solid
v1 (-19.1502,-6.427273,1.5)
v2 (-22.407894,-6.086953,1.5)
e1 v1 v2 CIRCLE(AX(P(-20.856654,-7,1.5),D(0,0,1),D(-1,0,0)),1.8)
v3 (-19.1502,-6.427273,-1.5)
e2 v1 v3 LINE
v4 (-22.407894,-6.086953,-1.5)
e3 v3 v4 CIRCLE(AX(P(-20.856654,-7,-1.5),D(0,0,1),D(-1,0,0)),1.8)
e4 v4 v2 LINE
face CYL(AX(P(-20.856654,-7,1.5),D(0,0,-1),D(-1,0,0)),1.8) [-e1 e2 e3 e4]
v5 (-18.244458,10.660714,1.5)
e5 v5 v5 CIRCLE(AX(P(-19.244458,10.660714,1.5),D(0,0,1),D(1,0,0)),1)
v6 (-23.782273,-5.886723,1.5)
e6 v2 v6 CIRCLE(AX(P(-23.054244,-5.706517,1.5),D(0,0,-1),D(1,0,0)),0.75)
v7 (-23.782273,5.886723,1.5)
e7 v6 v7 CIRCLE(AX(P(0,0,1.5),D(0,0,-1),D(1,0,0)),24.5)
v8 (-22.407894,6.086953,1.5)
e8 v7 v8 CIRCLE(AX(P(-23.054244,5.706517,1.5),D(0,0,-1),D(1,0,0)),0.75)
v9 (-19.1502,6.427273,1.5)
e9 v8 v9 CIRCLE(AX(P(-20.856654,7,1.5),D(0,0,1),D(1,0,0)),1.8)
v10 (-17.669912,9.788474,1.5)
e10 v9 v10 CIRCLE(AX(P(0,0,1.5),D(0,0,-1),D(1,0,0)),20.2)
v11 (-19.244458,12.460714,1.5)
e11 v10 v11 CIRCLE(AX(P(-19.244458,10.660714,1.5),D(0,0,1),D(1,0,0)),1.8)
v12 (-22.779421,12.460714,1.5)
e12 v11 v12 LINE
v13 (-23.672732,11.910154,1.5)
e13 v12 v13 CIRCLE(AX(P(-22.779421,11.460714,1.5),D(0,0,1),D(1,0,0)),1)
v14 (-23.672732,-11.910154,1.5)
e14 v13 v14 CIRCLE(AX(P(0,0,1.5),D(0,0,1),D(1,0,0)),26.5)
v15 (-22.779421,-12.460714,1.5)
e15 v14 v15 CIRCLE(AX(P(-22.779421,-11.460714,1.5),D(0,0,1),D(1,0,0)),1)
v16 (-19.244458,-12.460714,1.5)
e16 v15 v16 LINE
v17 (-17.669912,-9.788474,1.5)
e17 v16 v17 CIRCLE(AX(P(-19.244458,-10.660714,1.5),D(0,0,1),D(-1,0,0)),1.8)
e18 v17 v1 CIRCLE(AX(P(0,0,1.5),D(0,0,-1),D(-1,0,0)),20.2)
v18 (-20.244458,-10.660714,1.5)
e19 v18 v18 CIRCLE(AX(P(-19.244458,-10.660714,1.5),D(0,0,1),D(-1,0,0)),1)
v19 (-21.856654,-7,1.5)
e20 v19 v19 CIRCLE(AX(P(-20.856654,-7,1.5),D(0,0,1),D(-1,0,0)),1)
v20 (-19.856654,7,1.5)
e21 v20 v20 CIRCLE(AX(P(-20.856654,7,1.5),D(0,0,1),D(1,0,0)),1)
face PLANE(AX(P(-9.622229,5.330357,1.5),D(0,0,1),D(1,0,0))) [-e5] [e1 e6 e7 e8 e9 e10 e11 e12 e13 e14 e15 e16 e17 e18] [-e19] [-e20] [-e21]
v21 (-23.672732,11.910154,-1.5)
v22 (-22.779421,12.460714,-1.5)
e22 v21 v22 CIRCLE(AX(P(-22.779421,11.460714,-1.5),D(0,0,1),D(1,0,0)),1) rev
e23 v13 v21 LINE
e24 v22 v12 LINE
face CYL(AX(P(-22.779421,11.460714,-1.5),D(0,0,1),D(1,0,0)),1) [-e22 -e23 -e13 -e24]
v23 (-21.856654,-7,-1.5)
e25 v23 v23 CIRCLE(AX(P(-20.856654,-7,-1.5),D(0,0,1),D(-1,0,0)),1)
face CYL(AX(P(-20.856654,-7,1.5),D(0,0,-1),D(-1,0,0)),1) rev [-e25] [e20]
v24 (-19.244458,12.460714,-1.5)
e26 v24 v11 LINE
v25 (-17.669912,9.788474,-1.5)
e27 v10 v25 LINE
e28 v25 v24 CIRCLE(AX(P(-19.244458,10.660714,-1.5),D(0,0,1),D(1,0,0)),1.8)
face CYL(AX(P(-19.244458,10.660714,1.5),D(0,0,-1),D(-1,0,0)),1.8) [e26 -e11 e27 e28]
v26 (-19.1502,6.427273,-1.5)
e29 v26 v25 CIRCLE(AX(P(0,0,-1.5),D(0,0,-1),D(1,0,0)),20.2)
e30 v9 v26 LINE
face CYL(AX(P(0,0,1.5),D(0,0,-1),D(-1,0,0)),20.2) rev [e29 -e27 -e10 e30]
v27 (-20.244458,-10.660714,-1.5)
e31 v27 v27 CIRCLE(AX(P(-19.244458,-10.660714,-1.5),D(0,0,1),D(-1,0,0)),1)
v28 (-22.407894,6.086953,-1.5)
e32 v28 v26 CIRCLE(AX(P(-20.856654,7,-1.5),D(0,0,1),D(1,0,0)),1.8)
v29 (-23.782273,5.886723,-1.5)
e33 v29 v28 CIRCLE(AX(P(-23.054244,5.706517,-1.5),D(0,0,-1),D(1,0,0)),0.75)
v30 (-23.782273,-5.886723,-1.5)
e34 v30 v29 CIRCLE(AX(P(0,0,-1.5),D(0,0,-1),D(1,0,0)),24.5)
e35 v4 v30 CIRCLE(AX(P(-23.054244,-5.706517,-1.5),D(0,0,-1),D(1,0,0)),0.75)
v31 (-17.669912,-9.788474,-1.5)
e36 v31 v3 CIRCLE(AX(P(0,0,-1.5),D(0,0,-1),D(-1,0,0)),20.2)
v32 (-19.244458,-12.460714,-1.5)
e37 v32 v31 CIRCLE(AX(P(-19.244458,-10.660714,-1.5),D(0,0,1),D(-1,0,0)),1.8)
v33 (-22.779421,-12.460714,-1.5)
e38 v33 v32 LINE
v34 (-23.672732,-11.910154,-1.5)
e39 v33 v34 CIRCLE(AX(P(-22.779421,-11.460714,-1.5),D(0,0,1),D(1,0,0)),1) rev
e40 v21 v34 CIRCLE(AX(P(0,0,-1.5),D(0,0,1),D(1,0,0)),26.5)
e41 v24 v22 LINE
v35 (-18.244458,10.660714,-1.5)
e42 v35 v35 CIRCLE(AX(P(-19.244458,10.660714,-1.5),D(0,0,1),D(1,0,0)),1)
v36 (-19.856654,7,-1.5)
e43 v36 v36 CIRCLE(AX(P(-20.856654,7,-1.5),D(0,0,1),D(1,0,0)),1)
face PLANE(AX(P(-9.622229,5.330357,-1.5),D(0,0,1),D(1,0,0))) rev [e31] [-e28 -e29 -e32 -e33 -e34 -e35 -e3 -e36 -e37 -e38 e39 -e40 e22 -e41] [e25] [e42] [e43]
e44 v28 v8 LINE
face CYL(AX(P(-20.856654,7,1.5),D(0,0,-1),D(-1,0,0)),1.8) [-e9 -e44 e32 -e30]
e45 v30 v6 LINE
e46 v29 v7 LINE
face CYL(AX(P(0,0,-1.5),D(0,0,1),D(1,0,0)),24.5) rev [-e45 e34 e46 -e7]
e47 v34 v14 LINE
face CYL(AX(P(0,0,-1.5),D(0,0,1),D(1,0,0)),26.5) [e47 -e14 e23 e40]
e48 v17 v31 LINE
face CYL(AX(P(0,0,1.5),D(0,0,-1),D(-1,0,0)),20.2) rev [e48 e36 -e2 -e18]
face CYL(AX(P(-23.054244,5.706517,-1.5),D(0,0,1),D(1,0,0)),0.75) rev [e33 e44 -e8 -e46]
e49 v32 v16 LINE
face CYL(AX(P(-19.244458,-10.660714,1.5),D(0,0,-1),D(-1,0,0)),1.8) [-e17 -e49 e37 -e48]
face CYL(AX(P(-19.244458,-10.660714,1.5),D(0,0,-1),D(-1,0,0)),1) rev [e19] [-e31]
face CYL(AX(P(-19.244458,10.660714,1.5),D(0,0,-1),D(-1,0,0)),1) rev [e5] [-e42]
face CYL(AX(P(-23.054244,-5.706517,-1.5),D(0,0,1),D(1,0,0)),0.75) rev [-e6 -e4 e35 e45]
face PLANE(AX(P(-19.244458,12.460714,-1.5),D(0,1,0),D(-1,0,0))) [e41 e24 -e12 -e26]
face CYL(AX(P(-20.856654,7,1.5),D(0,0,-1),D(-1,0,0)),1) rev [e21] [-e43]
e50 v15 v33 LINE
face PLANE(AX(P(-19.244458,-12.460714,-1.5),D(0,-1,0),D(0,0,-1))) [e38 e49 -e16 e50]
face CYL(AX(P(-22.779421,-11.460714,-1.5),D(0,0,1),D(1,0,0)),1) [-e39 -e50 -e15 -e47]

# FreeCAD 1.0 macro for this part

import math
import FreeCAD as App
import Part
import Sketcher

V = App.Vector
Q = App.Units.Quantity


def edges_at(feature, points):
    """Names of the edges that pass closest to the given points."""
    edges = feature.Shape.Edges
    near = lambda p: min(range(len(edges)), key=lambda i: edges[i].distToShape(Part.Vertex(*p))[0])
    return sorted({f"Edge{near(p) + 1}" for p in points})

doc = App.newDocument("Part")
body = doc.addObject("PartDesign::Body", "Body")

# Sketch on XY plane
sketch1 = body.newObject("Sketcher::SketchObject", "Sketch")
sketch1.AttachmentSupport = (doc.getObject("XY_Plane"), [""])
sketch1.MapMode = "FlatFace"
sketch1.addGeometry([
    Part.ArcOfCircle(Part.Circle(V(0, 0, 0), V(0, 0, 1), 23.8), math.radians(151.02), math.radians(161.45)),  # 0
    Part.ArcOfCircle(Part.Circle(V(-20.9, 7, 0), V(0, 0, 1), 1.8), math.radians(161), math.radians(341)),  # 1
    Part.ArcOfCircle(Part.Circle(V(0, 0, 0), V(0, 0, 1), 20.2), math.radians(151.02), math.radians(161.45)),  # 2
    Part.ArcOfCircle(Part.Circle(V(-19.2, 10.7, 0), V(0, 0, 1), 1.8), math.radians(-29), math.radians(151)),  # 3
    Part.Circle(V(-20.9, 7, 0), V(0, 0, 1), 1),  # 4
    Part.Circle(V(-19.2, 10.7, 0), V(0, 0, 1), 1),  # 5
], False)
sketch1.addConstraint([
    Sketcher.Constraint("Tangent", 0, 2, 1, 1),
    Sketcher.Constraint("Tangent", 1, 2, 2, 2),
    Sketcher.Constraint("Tangent", 2, 1, 3, 1),
    Sketcher.Constraint("Tangent", 3, 2, 0, 1),
    Sketcher.Constraint("Coincident", 0, 3, -1, 1),
    Sketcher.Constraint("Coincident", 2, 3, -1, 1),
    Sketcher.Constraint("Coincident", 4, 3, 1, 3),
    Sketcher.Constraint("Coincident", 5, 3, 3, 3),
    Sketcher.Constraint("Equal", 4, 5),
    Sketcher.Constraint("Diameter", 4, Q("2 mm")),
    Sketcher.Constraint("Radius", 0, Q("23.8 mm")),
    Sketcher.Constraint("Radius", 1, Q("1.8 mm")),
    Sketcher.Constraint("DistanceY", -1, 1, 1, 3, Q("7 mm")),
    Sketcher.Constraint("DistanceY", 1, 2, 2, 1, Q("3.361201 mm")),
])
pad1 = body.newObject("PartDesign::Pad", "Pad")
pad1.Profile = sketch1
pad1.Length = 3
pad1.Midplane = True
body2 = doc.addObject("PartDesign::Body", "Body001")

# Sketch on XY plane
sketch2 = body2.newObject("Sketcher::SketchObject", "Sketch001")
sketch2.AttachmentSupport = (doc.getObject("XY_Plane001"), [""])
sketch2.MapMode = "FlatFace"
sketch2.addGeometry([
    Part.ArcOfCircle(Part.Circle(V(0, 0, 0), V(0, 0, 1), 23.8), math.radians(-161.45), math.radians(-151.02)),  # 0
    Part.ArcOfCircle(Part.Circle(V(-19.2, -10.7, 0), V(0, 0, 1), 1.8), math.radians(-151), math.radians(29)),  # 1
    Part.ArcOfCircle(Part.Circle(V(0, 0, 0), V(0, 0, 1), 20.2), math.radians(-161.45), math.radians(-151.02)),  # 2
    Part.ArcOfCircle(Part.Circle(V(-20.9, -7, 0), V(0, 0, 1), 1.8), math.radians(19), math.radians(199)),  # 3
    Part.Circle(V(-19.2, -10.7, 0), V(0, 0, 1), 1),  # 4
    Part.Circle(V(-20.9, -7, 0), V(0, 0, 1), 1),  # 5
], False)
sketch2.addConstraint([
    Sketcher.Constraint("Tangent", 0, 2, 1, 1),
    Sketcher.Constraint("Tangent", 1, 2, 2, 2),
    Sketcher.Constraint("Tangent", 2, 1, 3, 1),
    Sketcher.Constraint("Tangent", 3, 2, 0, 1),
    Sketcher.Constraint("Coincident", 0, 3, -1, 1),
    Sketcher.Constraint("Coincident", 2, 3, -1, 1),
    Sketcher.Constraint("Coincident", 4, 3, 1, 3),
    Sketcher.Constraint("Coincident", 5, 3, 3, 3),
    Sketcher.Constraint("Equal", 4, 5),
    Sketcher.Constraint("Diameter", 4, Q("2 mm")),
    Sketcher.Constraint("Radius", 0, Q("23.8 mm")),
    Sketcher.Constraint("Radius", 1, Q("1.8 mm")),
    Sketcher.Constraint("DistanceY", 3, 3, -1, 1, Q("7 mm")),
    Sketcher.Constraint("DistanceY", 1, 2, 2, 1, Q("3.361201 mm")),
])
pad2 = body2.newObject("PartDesign::Pad", "Pad001")
pad2.Profile = sketch2
pad2.Length = 3
pad2.Midplane = True
body.AllowCompound = True
doc.recompute()

boolean = body.newObject("PartDesign::Boolean", "Boolean")
boolean.Type = "Fuse"
boolean.addObjects([body2])

# Sketch on XY plane
sketch3 = body.newObject("Sketcher::SketchObject", "Sketch002")
sketch3.AttachmentSupport = (doc.getObject("XY_Plane"), [""])
sketch3.MapMode = "FlatFace"
sketch3.AttachmentOffset = App.Placement(V(0, 0, 1.5), App.Rotation())
sketch3.addGeometry([
    Part.LineSegment(V(-19.2, 12.5, 0), V(-23.4, 12.5, 0)),  # 0
    Part.ArcOfCircle(Part.Circle(V(0, 0, 0), V(0, 0, 1), 26.5), math.radians(152), math.radians(208)),  # 1
    Part.LineSegment(V(-23.4, -12.5, 0), V(-19.2, -12.5, 0)),  # 2
    Part.ArcOfCircle(Part.Circle(V(-19.2, -10.7, 0), V(0, 0, 1), 1.8), math.radians(-151), math.radians(-90)),  # 3
    Part.ArcOfCircle(Part.Circle(V(0, 0, 0), V(0, 0, 1), 23.8), math.radians(-161.45), math.radians(-151.02)),  # 4
    Part.ArcOfCircle(Part.Circle(V(-20.9, -7, 0), V(0, 0, 1), 1.8), math.radians(150), math.radians(199)),  # 5
    Part.ArcOfCircle(Part.Circle(V(-23.1, -5.7, 0), V(0, 0, 1), 0.8), math.radians(-166), math.radians(-30)),  # 6
    Part.ArcOfCircle(Part.Circle(V(0, 0, 0), V(0, 0, 1), 24.5), math.radians(166), math.radians(194)),  # 7
    Part.ArcOfCircle(Part.Circle(V(-23.1, 5.7, 0), V(0, 0, 1), 0.8), math.radians(30), math.radians(166)),  # 8
    Part.ArcOfCircle(Part.Circle(V(-20.9, 7, 0), V(0, 0, 1), 1.8), math.radians(161), math.radians(210)),  # 9
    Part.ArcOfCircle(Part.Circle(V(0, 0, 0), V(0, 0, 1), 23.8), math.radians(151.02), math.radians(161.45)),  # 10
    Part.ArcOfCircle(Part.Circle(V(-19.2, 10.7, 0), V(0, 0, 1), 1.8), math.radians(90), math.radians(151)),  # 11
], False)
sketch3.addConstraint([
    Sketcher.Constraint("Coincident", 0, 2, 1, 1),
    Sketcher.Constraint("Coincident", 1, 2, 2, 1),
    Sketcher.Constraint("Tangent", 2, 2, 3, 2),
    Sketcher.Constraint("Tangent", 3, 1, 4, 2),
    Sketcher.Constraint("Tangent", 4, 1, 5, 2),
    Sketcher.Constraint("Tangent", 5, 1, 6, 2),
    Sketcher.Constraint("Tangent", 6, 1, 7, 2),
    Sketcher.Constraint("Tangent", 7, 1, 8, 2),
    Sketcher.Constraint("Tangent", 8, 1, 9, 2),
    Sketcher.Constraint("Tangent", 9, 1, 10, 2),
    Sketcher.Constraint("Tangent", 10, 1, 11, 2),
    Sketcher.Constraint("Tangent", 11, 1, 0, 1),
    Sketcher.Constraint("Horizontal", 0),
    Sketcher.Constraint("Horizontal", 2),
    Sketcher.Constraint("Coincident", 1, 3, -1, 1),
    Sketcher.Constraint("Coincident", 4, 3, -1, 1),
    Sketcher.Constraint("Coincident", 7, 3, -1, 1),
    Sketcher.Constraint("Coincident", 10, 3, -1, 1),
    Sketcher.Constraint("Equal", 3, 5),
    Sketcher.Constraint("Equal", 6, 8),
    Sketcher.Constraint("Equal", 5, 9),
    Sketcher.Constraint("Equal", 4, 10),
    Sketcher.Constraint("Equal", 9, 11),
    Sketcher.Constraint("Vertical", 6, 3, 8, 3),
    Sketcher.Constraint("Vertical", 3, 3, 11, 3),
    Sketcher.Constraint("Radius", 1, Q("26.5 mm")),
    Sketcher.Constraint("Radius", 3, Q("1.8 mm")),
    Sketcher.Constraint("Radius", 4, Q("23.8 mm")),
    Sketcher.Constraint("Radius", 7, Q("24.5 mm")),
    Sketcher.Constraint("Radius", 6, Q("0.75 mm")),
    Sketcher.Constraint("DistanceY", 5, 3, -1, 1, Q("7 mm")),
    Sketcher.Constraint("DistanceY", 3, 1, 5, 1, Q("5.446001 mm")),
])
pad3 = body.newObject("PartDesign::Pad", "Pad002")
pad3.Profile = sketch3
pad3.Length = 3
pad3.Reversed = True
doc.recompute()

fillet = body.newObject("PartDesign::Fillet", "Fillet")
fillet.Base = (pad3, edges_at(pad3, [(-23.388, -12.461, 0), (-23.388, 12.461, 0)]))
fillet.Radius = 1

doc.recompute()
